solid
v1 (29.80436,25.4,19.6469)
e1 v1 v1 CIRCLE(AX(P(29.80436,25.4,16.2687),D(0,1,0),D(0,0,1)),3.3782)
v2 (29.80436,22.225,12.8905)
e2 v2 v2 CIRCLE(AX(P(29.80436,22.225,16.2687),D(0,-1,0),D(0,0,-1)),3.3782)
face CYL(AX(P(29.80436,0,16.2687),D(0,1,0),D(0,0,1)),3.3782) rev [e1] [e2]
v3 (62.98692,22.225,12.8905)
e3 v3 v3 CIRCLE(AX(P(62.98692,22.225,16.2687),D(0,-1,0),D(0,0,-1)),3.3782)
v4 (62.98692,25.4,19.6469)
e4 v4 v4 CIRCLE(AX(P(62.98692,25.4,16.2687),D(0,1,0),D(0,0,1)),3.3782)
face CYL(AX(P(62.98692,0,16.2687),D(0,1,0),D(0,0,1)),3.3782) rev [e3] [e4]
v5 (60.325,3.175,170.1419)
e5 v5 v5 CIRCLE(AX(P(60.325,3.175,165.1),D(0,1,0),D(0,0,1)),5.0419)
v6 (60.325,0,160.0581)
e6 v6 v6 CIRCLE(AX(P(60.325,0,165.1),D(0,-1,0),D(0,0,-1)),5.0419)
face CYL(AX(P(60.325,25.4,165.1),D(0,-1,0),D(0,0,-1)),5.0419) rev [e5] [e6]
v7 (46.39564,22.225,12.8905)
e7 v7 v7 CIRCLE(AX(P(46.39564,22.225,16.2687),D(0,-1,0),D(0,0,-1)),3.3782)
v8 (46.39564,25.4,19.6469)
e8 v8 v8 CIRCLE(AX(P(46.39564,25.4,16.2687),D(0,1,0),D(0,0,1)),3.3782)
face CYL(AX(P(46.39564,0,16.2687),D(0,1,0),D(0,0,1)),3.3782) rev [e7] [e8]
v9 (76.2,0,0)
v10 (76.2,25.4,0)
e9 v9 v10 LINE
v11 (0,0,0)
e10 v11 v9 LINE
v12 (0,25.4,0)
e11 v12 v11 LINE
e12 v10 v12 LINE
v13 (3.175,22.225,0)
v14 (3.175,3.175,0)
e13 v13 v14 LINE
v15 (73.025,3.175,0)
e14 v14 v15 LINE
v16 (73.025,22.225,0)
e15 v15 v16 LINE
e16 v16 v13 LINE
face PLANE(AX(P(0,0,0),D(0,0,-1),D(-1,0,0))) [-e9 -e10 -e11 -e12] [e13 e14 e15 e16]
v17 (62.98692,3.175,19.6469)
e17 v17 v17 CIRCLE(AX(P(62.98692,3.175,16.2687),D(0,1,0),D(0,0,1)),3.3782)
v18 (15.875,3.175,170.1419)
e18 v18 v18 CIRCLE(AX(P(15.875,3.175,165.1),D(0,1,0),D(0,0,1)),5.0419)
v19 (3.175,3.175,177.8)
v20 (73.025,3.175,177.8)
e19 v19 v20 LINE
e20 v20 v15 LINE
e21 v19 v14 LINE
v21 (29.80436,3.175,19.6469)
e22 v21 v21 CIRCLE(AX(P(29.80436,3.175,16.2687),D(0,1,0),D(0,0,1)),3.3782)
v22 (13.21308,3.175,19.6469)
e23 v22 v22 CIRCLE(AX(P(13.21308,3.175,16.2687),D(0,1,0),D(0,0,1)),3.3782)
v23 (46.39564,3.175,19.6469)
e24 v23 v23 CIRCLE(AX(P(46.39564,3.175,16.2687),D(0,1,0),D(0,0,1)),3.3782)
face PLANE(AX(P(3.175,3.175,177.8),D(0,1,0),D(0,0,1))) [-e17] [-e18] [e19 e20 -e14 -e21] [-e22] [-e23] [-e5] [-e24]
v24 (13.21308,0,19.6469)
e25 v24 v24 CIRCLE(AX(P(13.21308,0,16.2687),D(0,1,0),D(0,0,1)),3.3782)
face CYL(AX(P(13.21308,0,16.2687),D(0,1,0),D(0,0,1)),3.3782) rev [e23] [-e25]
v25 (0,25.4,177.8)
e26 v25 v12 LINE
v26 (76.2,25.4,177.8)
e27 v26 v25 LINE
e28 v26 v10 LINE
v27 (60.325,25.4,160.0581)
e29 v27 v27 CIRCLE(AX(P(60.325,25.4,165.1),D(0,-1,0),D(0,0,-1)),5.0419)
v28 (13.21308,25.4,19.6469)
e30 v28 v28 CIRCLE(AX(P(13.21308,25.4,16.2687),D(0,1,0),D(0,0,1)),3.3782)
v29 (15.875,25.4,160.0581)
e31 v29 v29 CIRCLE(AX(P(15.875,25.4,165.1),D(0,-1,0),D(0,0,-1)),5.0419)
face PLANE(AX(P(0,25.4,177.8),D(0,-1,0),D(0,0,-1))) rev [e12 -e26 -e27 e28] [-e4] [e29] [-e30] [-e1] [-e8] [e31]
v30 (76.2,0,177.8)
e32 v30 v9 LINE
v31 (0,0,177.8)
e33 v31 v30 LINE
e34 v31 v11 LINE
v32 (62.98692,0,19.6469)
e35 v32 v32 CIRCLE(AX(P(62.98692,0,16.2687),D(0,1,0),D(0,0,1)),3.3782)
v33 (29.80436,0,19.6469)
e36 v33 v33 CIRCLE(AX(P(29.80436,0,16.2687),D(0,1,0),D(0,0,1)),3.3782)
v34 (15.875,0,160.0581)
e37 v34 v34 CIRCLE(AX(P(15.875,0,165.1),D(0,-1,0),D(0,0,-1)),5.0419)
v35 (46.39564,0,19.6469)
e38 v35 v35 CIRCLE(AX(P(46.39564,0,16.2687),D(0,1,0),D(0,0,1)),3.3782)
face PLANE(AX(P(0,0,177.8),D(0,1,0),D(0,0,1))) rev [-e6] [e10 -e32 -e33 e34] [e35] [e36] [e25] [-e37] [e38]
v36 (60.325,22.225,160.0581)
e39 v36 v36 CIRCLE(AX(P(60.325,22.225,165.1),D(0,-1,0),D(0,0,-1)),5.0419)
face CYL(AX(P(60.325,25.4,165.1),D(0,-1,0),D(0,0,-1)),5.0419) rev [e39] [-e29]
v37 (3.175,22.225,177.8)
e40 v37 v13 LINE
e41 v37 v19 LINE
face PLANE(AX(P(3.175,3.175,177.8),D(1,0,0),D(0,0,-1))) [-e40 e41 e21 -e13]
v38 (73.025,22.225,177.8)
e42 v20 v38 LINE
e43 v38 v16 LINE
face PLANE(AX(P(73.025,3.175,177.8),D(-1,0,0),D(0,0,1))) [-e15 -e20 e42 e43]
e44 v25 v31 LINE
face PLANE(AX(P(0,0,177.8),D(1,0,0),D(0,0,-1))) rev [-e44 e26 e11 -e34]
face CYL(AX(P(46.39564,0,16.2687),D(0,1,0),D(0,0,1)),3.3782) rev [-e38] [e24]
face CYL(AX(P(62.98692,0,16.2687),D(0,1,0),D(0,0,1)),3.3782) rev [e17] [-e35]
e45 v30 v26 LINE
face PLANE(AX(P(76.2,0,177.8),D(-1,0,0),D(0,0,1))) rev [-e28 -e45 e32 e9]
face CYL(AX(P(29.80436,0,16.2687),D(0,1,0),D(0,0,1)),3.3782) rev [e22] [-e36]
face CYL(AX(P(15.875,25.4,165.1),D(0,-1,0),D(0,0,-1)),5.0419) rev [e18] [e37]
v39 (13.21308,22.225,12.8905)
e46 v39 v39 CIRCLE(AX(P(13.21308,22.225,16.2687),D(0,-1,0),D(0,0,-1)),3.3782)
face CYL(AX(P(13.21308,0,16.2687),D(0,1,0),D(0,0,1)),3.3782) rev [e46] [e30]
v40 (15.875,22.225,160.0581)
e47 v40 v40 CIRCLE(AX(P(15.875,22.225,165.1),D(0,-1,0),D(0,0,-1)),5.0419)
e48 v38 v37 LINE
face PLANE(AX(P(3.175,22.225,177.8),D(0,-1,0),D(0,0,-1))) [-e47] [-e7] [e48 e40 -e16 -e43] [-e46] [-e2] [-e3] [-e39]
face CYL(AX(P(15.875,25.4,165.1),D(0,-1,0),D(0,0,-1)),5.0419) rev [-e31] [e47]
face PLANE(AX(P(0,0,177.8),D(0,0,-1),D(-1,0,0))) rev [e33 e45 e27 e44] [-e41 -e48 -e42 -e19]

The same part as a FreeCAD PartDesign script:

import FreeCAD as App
import Part
import Sketcher

V = App.Vector
Q = App.Units.Quantity

doc = App.newDocument("Part")
params = doc.addObject("Spreadsheet::Sheet", "Params")
for row, (alias, value) in enumerate([
    ("sketch1_width", "3 in"),
    ("sketch1_height", "1 in"),
    ("sketch1_width2", "2.75 in"),
    ("sketch1_height2", "0.75 in"),
    ("pad1_length", "7 in"),
    ("sketch2_diameter", "0.266 in"),
    ("sketch3_diameter", "0.397 in"),
], start=1):
    params.set(f"A{row}", alias)
    params.set(f"B{row}", "=" + value)
    params.setAlias(f"B{row}", alias)

body = doc.addObject("PartDesign::Body", "Body")

# Sketch on XY plane
sketch1 = body.newObject("Sketcher::SketchObject", "Sketch")
sketch1.AttachmentSupport = (doc.getObject("XY_Plane"), [""])
sketch1.MapMode = "FlatFace"
sketch1.addGeometry(Part.LineSegment(V(0, 25, 0), V(0, 0, 0)), False)
sketch1.addGeometry(Part.LineSegment(V(0, 0, 0), V(76, 0, 0)), False)
sketch1.addGeometry(Part.LineSegment(V(76, 0, 0), V(76, 25, 0)), False)
sketch1.addGeometry(Part.LineSegment(V(76, 25, 0), V(0, 25, 0)), False)
sketch1.addGeometry(Part.LineSegment(V(73, 3, 0), V(3, 3, 0)), False)
sketch1.addGeometry(Part.LineSegment(V(3, 3, 0), V(3, 22, 0)), False)
sketch1.addGeometry(Part.LineSegment(V(3, 22, 0), V(73, 22, 0)), False)
sketch1.addGeometry(Part.LineSegment(V(73, 22, 0), V(73, 3, 0)), False)
sketch1.addConstraint(Sketcher.Constraint("Coincident", 0, 2, 1, 1))
sketch1.addConstraint(Sketcher.Constraint("Coincident", 1, 2, 2, 1))
sketch1.addConstraint(Sketcher.Constraint("Coincident", 2, 2, 3, 1))
sketch1.addConstraint(Sketcher.Constraint("Coincident", 3, 2, 0, 1))
sketch1.addConstraint(Sketcher.Constraint("Coincident", 4, 2, 5, 1))
sketch1.addConstraint(Sketcher.Constraint("Coincident", 5, 2, 6, 1))
sketch1.addConstraint(Sketcher.Constraint("Coincident", 6, 2, 7, 1))
sketch1.addConstraint(Sketcher.Constraint("Coincident", 7, 2, 4, 1))
sketch1.addConstraint(Sketcher.Constraint("Vertical", 0))
sketch1.addConstraint(Sketcher.Constraint("Horizontal", 1))
sketch1.addConstraint(Sketcher.Constraint("Vertical", 2))
sketch1.addConstraint(Sketcher.Constraint("Horizontal", 3))
sketch1.addConstraint(Sketcher.Constraint("Horizontal", 4))
sketch1.addConstraint(Sketcher.Constraint("Vertical", 5))
sketch1.addConstraint(Sketcher.Constraint("Horizontal", 6))
sketch1.addConstraint(Sketcher.Constraint("Vertical", 7))
sketch1.addConstraint(Sketcher.Constraint("Coincident", 0, 2, -1, 1))
sketch1.addConstraint(Sketcher.Constraint("DistanceX", 1, 1, 1, 2, Q("3 in")))
sketch1.addConstraint(Sketcher.Constraint("DistanceY", 0, 2, 0, 1, Q("1 in")))
sketch1.addConstraint(Sketcher.Constraint("DistanceX", 4, 2, 4, 1, Q("2.75 in")))
sketch1.addConstraint(Sketcher.Constraint("DistanceY", 5, 1, 5, 2, Q("0.75 in")))
sketch1.addConstraint(Sketcher.Constraint("DistanceX", -1, 1, 4, 2, Q("0.125 in")))
sketch1.addConstraint(Sketcher.Constraint("DistanceY", -1, 1, 4, 2, Q("0.125 in")))
sketch1.setExpression("Constraints[17]", "Params.sketch1_width")
sketch1.setExpression("Constraints[18]", "Params.sketch1_height")
sketch1.setExpression("Constraints[19]", "Params.sketch1_width2")
sketch1.setExpression("Constraints[20]", "Params.sketch1_height2")
pad1 = body.newObject("PartDesign::Pad", "Pad")
pad1.Profile = sketch1
pad1.setExpression("Length", "Params.pad1_length")

# Sketch on XZ plane
sketch2 = body.newObject("Sketcher::SketchObject", "Sketch001")
sketch2.AttachmentSupport = (doc.getObject("XZ_Plane"), [""])
sketch2.MapMode = "FlatFace"
sketch2.AttachmentOffset = App.Placement(V(0, 0, -1 * 25.4), App.Rotation())
sketch2.addGeometry(Part.Circle(V(13.2, 16.3, 0), V(0, 0, 1), 3.4), False)
sketch2.addGeometry(Part.Circle(V(29.8, 16.3, 0), V(0, 0, 1), 3.4), False)
sketch2.addGeometry(Part.Circle(V(46.4, 16.3, 0), V(0, 0, 1), 3.4), False)
sketch2.addGeometry(Part.Circle(V(63, 16.3, 0), V(0, 0, 1), 3.4), False)
sketch2.addConstraint(Sketcher.Constraint("Equal", 0, 1))
sketch2.addConstraint(Sketcher.Constraint("Equal", 1, 2))
sketch2.addConstraint(Sketcher.Constraint("Equal", 2, 3))
sketch2.addConstraint(Sketcher.Constraint("Horizontal", 0, 3, 1, 3))
sketch2.addConstraint(Sketcher.Constraint("Horizontal", 1, 3, 2, 3))
sketch2.addConstraint(Sketcher.Constraint("Horizontal", 2, 3, 3, 3))
sketch2.addConstraint(Sketcher.Constraint("Diameter", 0, Q("0.266 in")))
sketch2.addConstraint(Sketcher.Constraint("DistanceX", -1, 1, 0, 3, Q("0.5202 in")))
sketch2.addConstraint(Sketcher.Constraint("DistanceY", -1, 1, 0, 3, Q("0.6405 in")))
sketch2.addConstraint(Sketcher.Constraint("DistanceX", -1, 1, 1, 3, Q("1.1734 in")))
sketch2.addConstraint(Sketcher.Constraint("DistanceX", -1, 1, 2, 3, Q("1.8266 in")))
sketch2.addConstraint(Sketcher.Constraint("DistanceX", -1, 1, 3, 3, Q("2.4798 in")))
sketch2.setExpression("Constraints[6]", "Params.sketch2_diameter")
pocket1 = body.newObject("PartDesign::Pocket", "Pocket")
pocket1.Profile = sketch2
pocket1.Type = "ThroughAll"
pocket1.Reversed = True

# Sketch on XZ plane
sketch3 = body.newObject("Sketcher::SketchObject", "Sketch002")
sketch3.AttachmentSupport = (doc.getObject("XZ_Plane"), [""])
sketch3.MapMode = "FlatFace"
sketch3.addGeometry(Part.Circle(V(60, 165, 0), V(0, 0, 1), 5), False)
sketch3.addGeometry(Part.Circle(V(16, 165, 0), V(0, 0, 1), 5), False)
sketch3.addConstraint(Sketcher.Constraint("Equal", 0, 1))
sketch3.addConstraint(Sketcher.Constraint("Horizontal", 0, 3, 1, 3))
sketch3.addConstraint(Sketcher.Constraint("Diameter", 0, Q("0.397 in")))
sketch3.addConstraint(Sketcher.Constraint("DistanceY", -1, 1, 0, 3, Q("6.5 in")))
sketch3.addConstraint(Sketcher.Constraint("DistanceX", 1, 3, 0, 3, Q("1.75 in")))
sketch3.addConstraint(Sketcher.Constraint("DistanceX", -1, 1, 0, 3, Q("2.375 in")))
sketch3.setExpression("Constraints[2]", "Params.sketch3_diameter")
pocket2 = body.newObject("PartDesign::Pocket", "Pocket001")
pocket2.Profile = sketch3
pocket2.Type = "ThroughAll"

doc.recompute()
